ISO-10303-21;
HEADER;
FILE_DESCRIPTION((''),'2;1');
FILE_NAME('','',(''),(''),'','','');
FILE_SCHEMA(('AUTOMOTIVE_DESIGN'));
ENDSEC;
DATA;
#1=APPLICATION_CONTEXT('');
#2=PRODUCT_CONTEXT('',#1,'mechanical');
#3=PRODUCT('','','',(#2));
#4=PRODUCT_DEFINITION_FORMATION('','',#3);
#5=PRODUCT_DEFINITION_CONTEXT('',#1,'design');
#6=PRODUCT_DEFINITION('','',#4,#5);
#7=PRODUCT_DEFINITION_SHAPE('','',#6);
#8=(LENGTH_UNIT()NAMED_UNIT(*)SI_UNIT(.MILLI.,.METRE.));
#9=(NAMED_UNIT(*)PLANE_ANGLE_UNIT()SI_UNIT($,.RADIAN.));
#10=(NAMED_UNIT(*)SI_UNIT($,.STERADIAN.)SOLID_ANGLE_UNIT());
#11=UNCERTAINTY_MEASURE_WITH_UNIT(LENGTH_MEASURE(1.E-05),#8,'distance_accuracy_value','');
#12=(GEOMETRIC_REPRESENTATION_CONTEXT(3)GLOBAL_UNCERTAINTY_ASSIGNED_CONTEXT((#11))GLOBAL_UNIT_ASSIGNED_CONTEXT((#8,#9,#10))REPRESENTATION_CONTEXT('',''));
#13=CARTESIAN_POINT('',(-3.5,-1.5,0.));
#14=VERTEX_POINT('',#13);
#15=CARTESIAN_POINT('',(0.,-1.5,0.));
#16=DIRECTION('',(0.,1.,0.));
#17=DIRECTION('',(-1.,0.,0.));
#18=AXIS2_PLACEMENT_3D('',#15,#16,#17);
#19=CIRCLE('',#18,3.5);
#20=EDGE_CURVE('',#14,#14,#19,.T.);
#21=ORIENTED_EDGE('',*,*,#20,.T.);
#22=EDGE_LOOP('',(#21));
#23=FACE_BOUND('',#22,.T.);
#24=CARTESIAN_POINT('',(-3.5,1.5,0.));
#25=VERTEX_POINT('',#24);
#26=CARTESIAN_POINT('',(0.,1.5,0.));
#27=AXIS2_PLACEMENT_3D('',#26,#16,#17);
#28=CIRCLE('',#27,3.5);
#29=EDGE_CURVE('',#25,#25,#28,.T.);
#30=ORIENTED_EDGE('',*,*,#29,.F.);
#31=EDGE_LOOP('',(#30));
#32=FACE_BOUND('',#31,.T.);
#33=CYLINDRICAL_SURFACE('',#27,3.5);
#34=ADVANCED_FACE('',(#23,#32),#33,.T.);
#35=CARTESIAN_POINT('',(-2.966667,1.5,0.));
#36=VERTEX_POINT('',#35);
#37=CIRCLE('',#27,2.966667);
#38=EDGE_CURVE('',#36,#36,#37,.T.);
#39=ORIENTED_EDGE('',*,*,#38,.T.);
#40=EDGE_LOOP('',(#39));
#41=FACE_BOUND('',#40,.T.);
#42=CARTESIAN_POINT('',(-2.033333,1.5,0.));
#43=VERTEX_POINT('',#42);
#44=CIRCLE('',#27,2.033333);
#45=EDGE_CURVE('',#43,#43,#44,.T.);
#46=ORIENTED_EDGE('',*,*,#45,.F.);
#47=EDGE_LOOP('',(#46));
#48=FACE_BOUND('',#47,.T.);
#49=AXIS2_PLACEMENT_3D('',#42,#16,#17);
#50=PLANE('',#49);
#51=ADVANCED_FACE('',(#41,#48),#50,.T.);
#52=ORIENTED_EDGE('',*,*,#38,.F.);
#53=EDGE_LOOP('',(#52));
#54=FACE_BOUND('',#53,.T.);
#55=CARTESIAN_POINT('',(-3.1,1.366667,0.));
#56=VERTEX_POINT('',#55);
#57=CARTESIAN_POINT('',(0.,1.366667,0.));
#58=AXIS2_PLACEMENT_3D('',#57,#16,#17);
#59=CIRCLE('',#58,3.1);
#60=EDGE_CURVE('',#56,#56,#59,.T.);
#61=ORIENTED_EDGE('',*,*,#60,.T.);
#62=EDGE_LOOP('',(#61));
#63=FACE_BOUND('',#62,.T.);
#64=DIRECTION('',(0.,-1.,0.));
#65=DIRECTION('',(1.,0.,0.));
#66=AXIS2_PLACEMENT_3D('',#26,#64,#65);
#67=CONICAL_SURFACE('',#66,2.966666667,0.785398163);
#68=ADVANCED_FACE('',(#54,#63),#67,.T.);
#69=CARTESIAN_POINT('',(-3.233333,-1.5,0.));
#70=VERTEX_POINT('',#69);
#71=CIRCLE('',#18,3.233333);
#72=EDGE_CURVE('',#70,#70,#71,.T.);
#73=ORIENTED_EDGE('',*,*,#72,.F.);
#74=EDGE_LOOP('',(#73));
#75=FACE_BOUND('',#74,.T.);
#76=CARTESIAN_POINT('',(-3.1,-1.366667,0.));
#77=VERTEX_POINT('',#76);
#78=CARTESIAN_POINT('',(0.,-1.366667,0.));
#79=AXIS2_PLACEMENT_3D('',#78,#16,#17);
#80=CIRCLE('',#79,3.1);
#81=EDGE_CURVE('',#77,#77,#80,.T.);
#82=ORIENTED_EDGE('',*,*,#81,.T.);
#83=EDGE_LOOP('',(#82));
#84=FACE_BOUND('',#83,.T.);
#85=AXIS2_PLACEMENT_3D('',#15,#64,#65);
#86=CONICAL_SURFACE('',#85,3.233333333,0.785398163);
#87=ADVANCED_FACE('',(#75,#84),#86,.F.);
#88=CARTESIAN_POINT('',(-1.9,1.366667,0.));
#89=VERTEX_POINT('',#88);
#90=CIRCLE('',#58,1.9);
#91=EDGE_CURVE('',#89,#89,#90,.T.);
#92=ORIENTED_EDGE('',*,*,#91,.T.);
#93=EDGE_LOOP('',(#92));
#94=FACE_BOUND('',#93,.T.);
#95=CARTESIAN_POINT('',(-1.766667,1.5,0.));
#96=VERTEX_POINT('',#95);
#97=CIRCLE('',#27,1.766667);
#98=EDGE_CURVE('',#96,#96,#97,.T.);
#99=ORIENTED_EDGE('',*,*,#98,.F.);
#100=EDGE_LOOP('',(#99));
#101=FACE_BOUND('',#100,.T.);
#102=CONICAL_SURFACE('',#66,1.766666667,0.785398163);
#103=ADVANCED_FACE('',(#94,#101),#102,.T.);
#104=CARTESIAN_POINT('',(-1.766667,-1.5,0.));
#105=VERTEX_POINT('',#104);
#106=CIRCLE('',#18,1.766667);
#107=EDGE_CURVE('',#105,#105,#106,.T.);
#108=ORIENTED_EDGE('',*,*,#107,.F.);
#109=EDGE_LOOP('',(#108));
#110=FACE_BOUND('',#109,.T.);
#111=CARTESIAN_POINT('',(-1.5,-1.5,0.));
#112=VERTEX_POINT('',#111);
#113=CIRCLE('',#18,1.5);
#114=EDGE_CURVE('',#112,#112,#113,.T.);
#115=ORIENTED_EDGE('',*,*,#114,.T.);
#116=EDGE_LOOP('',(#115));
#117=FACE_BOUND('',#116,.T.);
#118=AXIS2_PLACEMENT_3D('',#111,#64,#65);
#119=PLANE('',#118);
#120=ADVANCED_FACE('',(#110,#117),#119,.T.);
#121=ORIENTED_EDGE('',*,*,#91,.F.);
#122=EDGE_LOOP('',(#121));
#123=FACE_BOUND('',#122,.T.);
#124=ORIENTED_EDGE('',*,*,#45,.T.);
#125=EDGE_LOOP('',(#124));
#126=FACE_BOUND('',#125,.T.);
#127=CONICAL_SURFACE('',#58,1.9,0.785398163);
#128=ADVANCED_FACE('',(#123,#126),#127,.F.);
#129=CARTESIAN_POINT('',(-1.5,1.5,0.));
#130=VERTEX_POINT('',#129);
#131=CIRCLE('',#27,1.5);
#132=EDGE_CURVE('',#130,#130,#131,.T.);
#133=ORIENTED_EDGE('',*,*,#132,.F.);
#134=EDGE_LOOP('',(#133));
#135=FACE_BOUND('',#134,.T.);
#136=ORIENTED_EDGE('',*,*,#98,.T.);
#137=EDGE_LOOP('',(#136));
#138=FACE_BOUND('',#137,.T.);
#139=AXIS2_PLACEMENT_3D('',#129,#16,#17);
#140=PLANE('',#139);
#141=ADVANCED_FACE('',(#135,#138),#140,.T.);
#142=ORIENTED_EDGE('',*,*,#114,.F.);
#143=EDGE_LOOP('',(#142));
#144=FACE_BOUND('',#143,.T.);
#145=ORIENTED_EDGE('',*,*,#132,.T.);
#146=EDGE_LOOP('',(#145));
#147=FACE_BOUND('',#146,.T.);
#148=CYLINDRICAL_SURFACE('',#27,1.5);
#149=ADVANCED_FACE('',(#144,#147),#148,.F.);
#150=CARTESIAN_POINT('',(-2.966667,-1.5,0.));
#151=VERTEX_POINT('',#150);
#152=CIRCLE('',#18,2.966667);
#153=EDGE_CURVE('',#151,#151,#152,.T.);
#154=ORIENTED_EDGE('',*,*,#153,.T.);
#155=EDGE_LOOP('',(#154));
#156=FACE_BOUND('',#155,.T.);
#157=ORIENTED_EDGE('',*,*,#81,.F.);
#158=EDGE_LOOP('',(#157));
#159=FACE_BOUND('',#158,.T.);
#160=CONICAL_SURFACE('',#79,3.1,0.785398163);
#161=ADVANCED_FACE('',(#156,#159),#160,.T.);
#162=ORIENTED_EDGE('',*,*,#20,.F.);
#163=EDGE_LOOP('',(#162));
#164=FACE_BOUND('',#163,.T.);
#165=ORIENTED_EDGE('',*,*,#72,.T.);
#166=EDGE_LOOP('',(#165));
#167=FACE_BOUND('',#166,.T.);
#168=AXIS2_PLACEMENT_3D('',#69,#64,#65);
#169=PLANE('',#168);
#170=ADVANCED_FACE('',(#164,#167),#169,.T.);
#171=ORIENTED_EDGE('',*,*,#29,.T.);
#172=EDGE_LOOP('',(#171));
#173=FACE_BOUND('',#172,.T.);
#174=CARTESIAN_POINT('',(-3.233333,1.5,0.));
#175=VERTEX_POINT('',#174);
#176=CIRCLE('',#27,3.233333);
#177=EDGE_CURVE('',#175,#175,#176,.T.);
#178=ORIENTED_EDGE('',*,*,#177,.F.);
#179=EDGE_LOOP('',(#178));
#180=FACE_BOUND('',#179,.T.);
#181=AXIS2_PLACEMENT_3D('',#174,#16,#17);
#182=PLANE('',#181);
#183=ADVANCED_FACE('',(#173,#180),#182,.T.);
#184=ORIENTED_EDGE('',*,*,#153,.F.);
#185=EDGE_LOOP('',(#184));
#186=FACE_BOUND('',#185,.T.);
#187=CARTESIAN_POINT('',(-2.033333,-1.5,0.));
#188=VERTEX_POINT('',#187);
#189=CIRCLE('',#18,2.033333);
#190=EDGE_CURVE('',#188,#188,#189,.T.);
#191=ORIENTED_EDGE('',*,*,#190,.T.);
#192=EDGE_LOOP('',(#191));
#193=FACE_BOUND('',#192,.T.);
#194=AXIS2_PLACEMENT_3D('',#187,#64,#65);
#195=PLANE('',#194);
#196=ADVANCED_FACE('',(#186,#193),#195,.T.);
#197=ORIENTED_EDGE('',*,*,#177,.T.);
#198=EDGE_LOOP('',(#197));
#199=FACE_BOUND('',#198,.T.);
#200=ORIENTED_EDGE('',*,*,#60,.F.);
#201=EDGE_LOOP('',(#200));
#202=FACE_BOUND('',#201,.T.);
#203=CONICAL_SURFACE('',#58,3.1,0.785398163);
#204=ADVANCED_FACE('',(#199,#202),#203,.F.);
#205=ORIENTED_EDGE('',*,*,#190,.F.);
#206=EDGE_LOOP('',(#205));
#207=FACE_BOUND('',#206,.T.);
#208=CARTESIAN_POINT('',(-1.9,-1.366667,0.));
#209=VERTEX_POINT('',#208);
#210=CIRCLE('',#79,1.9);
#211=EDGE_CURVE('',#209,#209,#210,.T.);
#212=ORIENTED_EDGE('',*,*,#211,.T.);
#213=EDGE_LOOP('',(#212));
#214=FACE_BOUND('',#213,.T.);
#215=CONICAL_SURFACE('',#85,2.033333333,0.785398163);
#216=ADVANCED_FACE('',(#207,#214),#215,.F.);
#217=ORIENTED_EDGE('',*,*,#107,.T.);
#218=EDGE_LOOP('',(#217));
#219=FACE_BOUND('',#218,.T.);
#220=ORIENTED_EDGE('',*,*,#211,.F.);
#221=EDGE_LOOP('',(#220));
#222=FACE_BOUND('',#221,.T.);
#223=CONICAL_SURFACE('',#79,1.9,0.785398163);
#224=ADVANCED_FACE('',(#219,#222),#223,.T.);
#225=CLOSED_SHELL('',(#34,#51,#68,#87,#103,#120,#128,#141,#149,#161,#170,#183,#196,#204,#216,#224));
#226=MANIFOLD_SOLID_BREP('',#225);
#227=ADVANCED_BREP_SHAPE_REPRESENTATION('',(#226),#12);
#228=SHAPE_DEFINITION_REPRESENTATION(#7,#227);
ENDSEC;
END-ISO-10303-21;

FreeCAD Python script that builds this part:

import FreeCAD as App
import Part
import Sketcher

V = App.Vector


def add_polygon(sketch, points):
    """Adds a closed chain of lines whose ends are joined by coincident constraints."""
    first, n = sketch.GeometryCount, len(points)
    for a, b in zip(points, points[1:] + points[:1]):
        sketch.addGeometry(Part.LineSegment(App.Vector(*a, 0), App.Vector(*b, 0)), False)
    for i in range(n):
        sketch.addConstraint(Sketcher.Constraint("Coincident", first + i, 2, first + (i + 1) % n, 1))

doc = App.newDocument("Part")
params = doc.addObject("Spreadsheet::Sheet", "Params")
for row, (alias, value) in enumerate([
    ("sketch1_height", "3 mm"),
    ("revolution_angle", "360 deg"),
], start=1):
    params.set(f"A{row}", alias)
    params.set(f"B{row}", "=" + value)
    params.setAlias(f"B{row}", alias)

body = doc.addObject("PartDesign::Body", "Body")

# Sketch on XY plane
sketch1 = body.newObject("Sketcher::SketchObject", "Sketch")
sketch1.AttachmentSupport = (doc.getObject("XY_Plane"), [""])
sketch1.MapMode = "FlatFace"
add_polygon(sketch1, [(-1.5, 1.5), (-1.77, 1.5), (-1.9, 1.37), (-2.03, 1.5), (-2.97, 1.5), (-3.1, 1.37), (-3.23, 1.5), (-3.5, 1.5), (-3.5, -1.5), (-3.23, -1.5), (-3.1, -1.37), (-2.97, -1.5), (-2.03, -1.5), (-1.9, -1.37), (-1.77, -1.5), (-1.5, -1.5)])  # lines 0-15
sketch1.addConstraint([
    Sketcher.Constraint("Horizontal", 0),
    Sketcher.Constraint("Horizontal", 3),
    Sketcher.Constraint("Horizontal", 6),
    Sketcher.Constraint("Vertical", 7),
    Sketcher.Constraint("Horizontal", 8),
    Sketcher.Constraint("Horizontal", 11),
    Sketcher.Constraint("Horizontal", 14),
    Sketcher.Constraint("Vertical", 15),
    Sketcher.Constraint("Symmetric", 5, 2, 8, 2, -1),
    Sketcher.Constraint("Symmetric", 4, 2, 9, 2, -1),
    Sketcher.Constraint("Symmetric", 3, 2, 10, 2, -1),
    Sketcher.Constraint("Symmetric", 1, 2, 12, 2, -1),
    Sketcher.Constraint("Symmetric", 0, 2, 13, 2, -1),
    Sketcher.Constraint("Perpendicular", 1, 2),
    Sketcher.Constraint("Perpendicular", 2, 4),
    Sketcher.Constraint("Perpendicular", 4, 5),
    Sketcher.Constraint("Perpendicular", 5, 9),
    Sketcher.Constraint("Perpendicular", 10, 12),
    Sketcher.Constraint("Horizontal", 0, 2, 2, 2),
    Sketcher.Constraint("Horizontal", 1, 2, 4, 2),
    Sketcher.Constraint("Horizontal", 3, 2, 5, 2),
    Sketcher.Constraint("Equal", 0, 6),
    Sketcher.Constraint("DistanceY", 7, 2, 7, 1, 3.0),
    Sketcher.Constraint("DistanceX", 1, 2, -1, 1, 1.9),
    Sketcher.Constraint("DistanceX", 4, 2, -1, 1, 3.1),
    Sketcher.Constraint("DistanceX", 6, 2, -1, 1, 3.5),
    Sketcher.Constraint("Distance", 1, 0.188562),
])
sketch1.setExpression("Constraints[38]", "Params.sketch1_height")
revolution = body.newObject("PartDesign::Revolution", "Revolution")
revolution.Profile = sketch1
revolution.ReferenceAxis = (sketch1, ["V_Axis"])
revolution.setExpression("Angle", "Params.revolution_angle")

doc.recompute()
